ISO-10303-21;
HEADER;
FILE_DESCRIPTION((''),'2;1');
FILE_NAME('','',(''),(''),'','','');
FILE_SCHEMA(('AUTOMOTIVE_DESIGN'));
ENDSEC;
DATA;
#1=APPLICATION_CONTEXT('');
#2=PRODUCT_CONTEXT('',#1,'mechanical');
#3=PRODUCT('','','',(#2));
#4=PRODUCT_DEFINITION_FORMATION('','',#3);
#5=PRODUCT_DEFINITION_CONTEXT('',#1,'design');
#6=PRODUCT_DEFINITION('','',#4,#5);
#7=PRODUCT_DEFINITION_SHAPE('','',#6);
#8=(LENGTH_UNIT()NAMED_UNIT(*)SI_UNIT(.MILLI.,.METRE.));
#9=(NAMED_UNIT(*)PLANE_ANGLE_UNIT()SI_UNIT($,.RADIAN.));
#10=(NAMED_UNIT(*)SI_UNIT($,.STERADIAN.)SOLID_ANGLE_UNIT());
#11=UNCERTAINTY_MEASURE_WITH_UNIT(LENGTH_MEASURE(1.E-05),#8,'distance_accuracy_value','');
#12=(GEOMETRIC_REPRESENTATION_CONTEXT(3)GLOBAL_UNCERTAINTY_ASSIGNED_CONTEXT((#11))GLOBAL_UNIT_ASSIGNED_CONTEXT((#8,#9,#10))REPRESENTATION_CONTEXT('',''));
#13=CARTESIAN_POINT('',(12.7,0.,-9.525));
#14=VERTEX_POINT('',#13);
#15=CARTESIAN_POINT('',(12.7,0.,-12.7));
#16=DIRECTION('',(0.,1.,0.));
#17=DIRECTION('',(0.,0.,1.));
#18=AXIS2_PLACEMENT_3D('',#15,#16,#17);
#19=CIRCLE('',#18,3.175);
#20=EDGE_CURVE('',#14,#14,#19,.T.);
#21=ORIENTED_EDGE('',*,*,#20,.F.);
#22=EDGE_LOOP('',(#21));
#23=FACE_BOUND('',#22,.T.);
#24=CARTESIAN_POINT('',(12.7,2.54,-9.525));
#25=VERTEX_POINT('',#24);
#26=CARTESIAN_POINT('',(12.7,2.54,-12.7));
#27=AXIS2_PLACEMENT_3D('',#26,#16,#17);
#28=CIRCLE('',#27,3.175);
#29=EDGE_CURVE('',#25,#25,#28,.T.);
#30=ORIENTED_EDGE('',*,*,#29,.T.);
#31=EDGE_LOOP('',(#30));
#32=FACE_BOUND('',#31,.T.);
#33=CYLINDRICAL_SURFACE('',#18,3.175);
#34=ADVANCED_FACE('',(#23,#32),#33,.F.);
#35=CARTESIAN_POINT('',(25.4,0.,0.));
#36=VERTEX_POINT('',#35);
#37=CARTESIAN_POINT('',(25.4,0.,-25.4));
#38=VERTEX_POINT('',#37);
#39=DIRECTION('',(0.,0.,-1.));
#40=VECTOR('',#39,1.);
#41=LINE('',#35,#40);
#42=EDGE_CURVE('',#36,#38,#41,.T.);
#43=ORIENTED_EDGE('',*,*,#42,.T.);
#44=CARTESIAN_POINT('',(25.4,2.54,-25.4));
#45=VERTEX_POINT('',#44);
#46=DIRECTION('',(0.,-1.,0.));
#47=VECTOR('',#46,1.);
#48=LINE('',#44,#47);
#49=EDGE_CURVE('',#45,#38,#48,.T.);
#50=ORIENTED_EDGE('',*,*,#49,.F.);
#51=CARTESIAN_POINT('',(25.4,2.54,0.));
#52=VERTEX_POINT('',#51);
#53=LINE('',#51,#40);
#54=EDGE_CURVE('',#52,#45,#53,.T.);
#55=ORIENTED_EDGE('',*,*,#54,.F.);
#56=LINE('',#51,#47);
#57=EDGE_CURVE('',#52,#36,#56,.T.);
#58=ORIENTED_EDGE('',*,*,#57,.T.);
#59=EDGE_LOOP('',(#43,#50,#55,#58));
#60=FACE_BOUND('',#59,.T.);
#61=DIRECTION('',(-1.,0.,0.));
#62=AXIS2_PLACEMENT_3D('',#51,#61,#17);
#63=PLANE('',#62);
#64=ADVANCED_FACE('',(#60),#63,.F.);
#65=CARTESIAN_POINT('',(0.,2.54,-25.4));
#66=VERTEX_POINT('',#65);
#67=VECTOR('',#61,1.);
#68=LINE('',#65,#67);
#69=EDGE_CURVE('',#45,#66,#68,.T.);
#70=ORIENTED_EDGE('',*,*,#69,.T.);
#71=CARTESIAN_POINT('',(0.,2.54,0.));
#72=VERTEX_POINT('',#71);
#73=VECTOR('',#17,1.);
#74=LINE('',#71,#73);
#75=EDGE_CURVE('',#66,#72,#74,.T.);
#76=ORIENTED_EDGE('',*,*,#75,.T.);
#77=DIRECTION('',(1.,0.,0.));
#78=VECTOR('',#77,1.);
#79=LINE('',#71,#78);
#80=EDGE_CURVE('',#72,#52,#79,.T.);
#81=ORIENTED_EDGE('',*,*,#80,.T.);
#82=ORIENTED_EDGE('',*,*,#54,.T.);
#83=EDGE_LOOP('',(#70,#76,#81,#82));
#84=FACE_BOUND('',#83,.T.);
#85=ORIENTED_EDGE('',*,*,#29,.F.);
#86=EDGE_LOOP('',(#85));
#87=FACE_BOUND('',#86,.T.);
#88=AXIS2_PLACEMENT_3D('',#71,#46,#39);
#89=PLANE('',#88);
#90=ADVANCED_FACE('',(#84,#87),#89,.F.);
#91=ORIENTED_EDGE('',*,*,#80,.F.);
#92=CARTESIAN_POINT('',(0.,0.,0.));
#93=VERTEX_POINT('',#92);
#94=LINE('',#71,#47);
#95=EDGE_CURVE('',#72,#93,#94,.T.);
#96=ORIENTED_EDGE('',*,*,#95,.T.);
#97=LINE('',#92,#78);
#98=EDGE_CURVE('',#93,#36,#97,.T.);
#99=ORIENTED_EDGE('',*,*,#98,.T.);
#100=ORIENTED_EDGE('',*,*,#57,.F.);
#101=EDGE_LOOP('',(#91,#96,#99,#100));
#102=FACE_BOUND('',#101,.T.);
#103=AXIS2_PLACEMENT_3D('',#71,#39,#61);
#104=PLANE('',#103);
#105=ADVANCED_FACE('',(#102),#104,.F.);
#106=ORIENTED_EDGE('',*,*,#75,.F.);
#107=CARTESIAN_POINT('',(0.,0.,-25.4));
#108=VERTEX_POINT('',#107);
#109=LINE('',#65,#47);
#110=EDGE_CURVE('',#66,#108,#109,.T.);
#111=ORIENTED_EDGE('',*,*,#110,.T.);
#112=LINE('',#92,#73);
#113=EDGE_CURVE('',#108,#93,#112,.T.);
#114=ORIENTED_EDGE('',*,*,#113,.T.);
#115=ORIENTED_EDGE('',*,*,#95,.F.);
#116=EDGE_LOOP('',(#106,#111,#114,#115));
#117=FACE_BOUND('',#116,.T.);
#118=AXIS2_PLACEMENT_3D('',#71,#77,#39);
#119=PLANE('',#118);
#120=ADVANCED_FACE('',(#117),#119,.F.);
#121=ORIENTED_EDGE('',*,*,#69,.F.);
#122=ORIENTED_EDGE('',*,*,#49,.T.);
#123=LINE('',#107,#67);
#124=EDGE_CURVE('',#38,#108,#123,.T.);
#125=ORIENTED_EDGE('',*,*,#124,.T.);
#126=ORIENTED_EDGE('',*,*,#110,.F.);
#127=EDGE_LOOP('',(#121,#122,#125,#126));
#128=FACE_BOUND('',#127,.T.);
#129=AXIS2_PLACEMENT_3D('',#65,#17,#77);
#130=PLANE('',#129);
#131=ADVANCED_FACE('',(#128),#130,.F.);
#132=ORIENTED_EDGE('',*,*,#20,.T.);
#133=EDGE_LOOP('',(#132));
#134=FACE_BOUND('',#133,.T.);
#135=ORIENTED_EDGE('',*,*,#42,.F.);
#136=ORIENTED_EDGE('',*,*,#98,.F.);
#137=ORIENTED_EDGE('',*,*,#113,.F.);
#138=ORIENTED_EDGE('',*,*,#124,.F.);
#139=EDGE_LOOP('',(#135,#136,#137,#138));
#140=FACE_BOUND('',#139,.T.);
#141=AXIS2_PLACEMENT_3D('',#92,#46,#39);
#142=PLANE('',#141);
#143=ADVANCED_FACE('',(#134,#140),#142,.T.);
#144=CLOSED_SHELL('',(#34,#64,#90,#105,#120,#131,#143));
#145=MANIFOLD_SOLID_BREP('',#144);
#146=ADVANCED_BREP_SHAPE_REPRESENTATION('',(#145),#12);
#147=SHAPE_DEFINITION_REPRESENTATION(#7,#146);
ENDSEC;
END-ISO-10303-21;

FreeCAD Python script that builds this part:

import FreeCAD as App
import Part
import Sketcher
from FreeCAD import Vector
Q = App.Units.Quantity

doc = App.newDocument("Part")
body = doc.addObject("PartDesign::Body", "Body")

sketch1 = doc.addObject("Sketcher::SketchObject", "Sketch")
body.addObject(sketch1)
sketch1.AttachmentSupport = (doc.XZ_Plane, [""])
sketch1.MapMode = "FlatFace"
sketch1.addGeometry(Part.LineSegment(Vector(0, -25.4, 0), Vector(0, 0, 0)), False)
sketch1.addGeometry(Part.LineSegment(Vector(0, 0, 0), Vector(25.4, 0, 0)), False)
sketch1.addGeometry(Part.LineSegment(Vector(25.4, 0, 0), Vector(25.4, -25.4, 0)), False)
sketch1.addGeometry(Part.LineSegment(Vector(25.4, -25.4, 0), Vector(0, -25.4, 0)), False)
sketch1.addConstraint(Sketcher.Constraint("Coincident", 0, 2, 1, 1))
sketch1.addConstraint(Sketcher.Constraint("Coincident", 1, 2, 2, 1))
sketch1.addConstraint(Sketcher.Constraint("Coincident", 2, 2, 3, 1))
sketch1.addConstraint(Sketcher.Constraint("Coincident", 3, 2, 0, 1))
sketch1.addConstraint(Sketcher.Constraint("Vertical", 0))
sketch1.addConstraint(Sketcher.Constraint("Horizontal", 1))
sketch1.addConstraint(Sketcher.Constraint("Vertical", 2))
sketch1.addConstraint(Sketcher.Constraint("Horizontal", 3))
sketch1.addConstraint(Sketcher.Constraint("Coincident", 0, 2, -1, 1))
sketch1.addConstraint(Sketcher.Constraint("Equal", 3, 0))
sketch1.addConstraint(Sketcher.Constraint("DistanceX", 1, 1, 1, 2, Q("1 in")))
pad1 = doc.addObject("PartDesign::Pad", "Pad")
body.addObject(pad1)
pad1.Profile = sketch1
pad1.Length = Q("0.1 in")
pad1.Reversed = True

sketch2 = doc.addObject("Sketcher::SketchObject", "Sketch001")
body.addObject(sketch2)
sketch2.AttachmentSupport = (doc.XZ_Plane, [""])
sketch2.MapMode = "FlatFace"
sketch2.AttachmentOffset = App.Placement(Vector(0, 0, -0.1 * 25.4), App.Rotation())
sketch2.addGeometry(Part.Circle(Vector(12.7, -12.7, 0), Vector(0, 0, 1), 3.175), False)
sketch2.addConstraint(Sketcher.Constraint("Diameter", 0, Q("0.25 in")))
sketch2.addConstraint(Sketcher.Constraint("DistanceX", -1, 1, 0, 3, Q("0.5 in")))
sketch2.addConstraint(Sketcher.Constraint("DistanceY", 0, 3, -1, 1, Q("0.5 in")))
pocket1 = doc.addObject("PartDesign::Pocket", "Pocket")
body.addObject(pocket1)
pocket1.Profile = sketch2
pocket1.Length = Q("0.1 in")
pocket1.Reversed = True

doc.recompute()
